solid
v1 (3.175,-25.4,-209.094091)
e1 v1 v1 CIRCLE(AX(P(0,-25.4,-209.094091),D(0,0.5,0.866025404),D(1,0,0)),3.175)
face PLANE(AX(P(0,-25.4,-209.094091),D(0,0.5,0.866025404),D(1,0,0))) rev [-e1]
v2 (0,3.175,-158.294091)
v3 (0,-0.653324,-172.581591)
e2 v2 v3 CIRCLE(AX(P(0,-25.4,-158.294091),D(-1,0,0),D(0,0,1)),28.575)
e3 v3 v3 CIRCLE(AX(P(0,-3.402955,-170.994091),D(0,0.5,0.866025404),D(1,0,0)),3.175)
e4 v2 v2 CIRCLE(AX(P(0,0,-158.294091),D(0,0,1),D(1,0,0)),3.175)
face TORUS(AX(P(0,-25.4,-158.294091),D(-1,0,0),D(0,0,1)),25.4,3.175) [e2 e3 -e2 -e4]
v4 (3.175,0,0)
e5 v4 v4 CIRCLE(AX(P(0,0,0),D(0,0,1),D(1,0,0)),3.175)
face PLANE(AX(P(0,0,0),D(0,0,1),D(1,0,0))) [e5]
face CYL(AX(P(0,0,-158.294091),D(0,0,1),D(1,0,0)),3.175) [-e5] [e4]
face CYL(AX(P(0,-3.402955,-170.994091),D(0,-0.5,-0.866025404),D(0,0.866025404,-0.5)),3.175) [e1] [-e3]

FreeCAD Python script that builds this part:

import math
import FreeCAD as App
import Part
import Sketcher
Q = App.Units.Quantity

doc = App.newDocument("Part")
body = doc.addObject("PartDesign::Body", "Body")

# Sketch on XY plane
sketch1 = doc.addObject("Sketcher::SketchObject", "Sketch")
body.addObject(sketch1)
sketch1.AttachmentSupport = (doc.XY_Plane, [""])
sketch1.MapMode = "FlatFace"
sketch1.addGeometry(Part.Circle(App.Vector(0, 0, 0), App.Vector(0, 0, 1), 3.2), False)
sketch1.addConstraint(Sketcher.Constraint("Coincident", 0, 3, -1, 1))
sketch1.addConstraint(Sketcher.Constraint("Diameter", 0, Q("0.25 in")))

# Sketch on YZ plane
sketch2 = doc.addObject("Sketcher::SketchObject", "Sketch001")
body.addObject(sketch2)
sketch2.AttachmentSupport = (doc.YZ_Plane, [""])
sketch2.MapMode = "FlatFace"
sketch2.addGeometry(Part.LineSegment(App.Vector(0, 0, 0), App.Vector(0, -158, 0)), False)
sketch2.addGeometry(Part.ArcOfCircle(Part.Circle(App.Vector(-25, -158, 0), App.Vector(0, 0, 1), 25), math.radians(-30), math.radians(0)), False)
sketch2.addGeometry(Part.LineSegment(App.Vector(-3, -171, 0), App.Vector(-25, -209, 0)), False)
sketch2.addConstraint(Sketcher.Constraint("Tangent", 0, 2, 1, 2))
sketch2.addConstraint(Sketcher.Constraint("Tangent", 1, 1, 2, 1))
sketch2.addConstraint(Sketcher.Constraint("Vertical", 0))
sketch2.addConstraint(Sketcher.Constraint("Coincident", 0, 1, -1, 1))
sketch2.addConstraint(Sketcher.Constraint("Vertical", 1, 3, 2, 2))
sketch2.addConstraint(Sketcher.Constraint("Radius", 1, Q("1 in")))
sketch2.addConstraint(Sketcher.Constraint("Angle", 2, Q("-120 deg")))
sketch2.addConstraint(Sketcher.Constraint("DistanceY", 0, 2, 0, 1, Q("158.294091 mm")))
doc.recompute()

additivepipe = doc.addObject("PartDesign::AdditivePipe", "AdditivePipe")
body.addObject(additivepipe)
additivepipe.Profile = sketch1
additivepipe.Spine = (sketch2, ["Edge1", "Edge2", "Edge3"])

doc.recompute()
